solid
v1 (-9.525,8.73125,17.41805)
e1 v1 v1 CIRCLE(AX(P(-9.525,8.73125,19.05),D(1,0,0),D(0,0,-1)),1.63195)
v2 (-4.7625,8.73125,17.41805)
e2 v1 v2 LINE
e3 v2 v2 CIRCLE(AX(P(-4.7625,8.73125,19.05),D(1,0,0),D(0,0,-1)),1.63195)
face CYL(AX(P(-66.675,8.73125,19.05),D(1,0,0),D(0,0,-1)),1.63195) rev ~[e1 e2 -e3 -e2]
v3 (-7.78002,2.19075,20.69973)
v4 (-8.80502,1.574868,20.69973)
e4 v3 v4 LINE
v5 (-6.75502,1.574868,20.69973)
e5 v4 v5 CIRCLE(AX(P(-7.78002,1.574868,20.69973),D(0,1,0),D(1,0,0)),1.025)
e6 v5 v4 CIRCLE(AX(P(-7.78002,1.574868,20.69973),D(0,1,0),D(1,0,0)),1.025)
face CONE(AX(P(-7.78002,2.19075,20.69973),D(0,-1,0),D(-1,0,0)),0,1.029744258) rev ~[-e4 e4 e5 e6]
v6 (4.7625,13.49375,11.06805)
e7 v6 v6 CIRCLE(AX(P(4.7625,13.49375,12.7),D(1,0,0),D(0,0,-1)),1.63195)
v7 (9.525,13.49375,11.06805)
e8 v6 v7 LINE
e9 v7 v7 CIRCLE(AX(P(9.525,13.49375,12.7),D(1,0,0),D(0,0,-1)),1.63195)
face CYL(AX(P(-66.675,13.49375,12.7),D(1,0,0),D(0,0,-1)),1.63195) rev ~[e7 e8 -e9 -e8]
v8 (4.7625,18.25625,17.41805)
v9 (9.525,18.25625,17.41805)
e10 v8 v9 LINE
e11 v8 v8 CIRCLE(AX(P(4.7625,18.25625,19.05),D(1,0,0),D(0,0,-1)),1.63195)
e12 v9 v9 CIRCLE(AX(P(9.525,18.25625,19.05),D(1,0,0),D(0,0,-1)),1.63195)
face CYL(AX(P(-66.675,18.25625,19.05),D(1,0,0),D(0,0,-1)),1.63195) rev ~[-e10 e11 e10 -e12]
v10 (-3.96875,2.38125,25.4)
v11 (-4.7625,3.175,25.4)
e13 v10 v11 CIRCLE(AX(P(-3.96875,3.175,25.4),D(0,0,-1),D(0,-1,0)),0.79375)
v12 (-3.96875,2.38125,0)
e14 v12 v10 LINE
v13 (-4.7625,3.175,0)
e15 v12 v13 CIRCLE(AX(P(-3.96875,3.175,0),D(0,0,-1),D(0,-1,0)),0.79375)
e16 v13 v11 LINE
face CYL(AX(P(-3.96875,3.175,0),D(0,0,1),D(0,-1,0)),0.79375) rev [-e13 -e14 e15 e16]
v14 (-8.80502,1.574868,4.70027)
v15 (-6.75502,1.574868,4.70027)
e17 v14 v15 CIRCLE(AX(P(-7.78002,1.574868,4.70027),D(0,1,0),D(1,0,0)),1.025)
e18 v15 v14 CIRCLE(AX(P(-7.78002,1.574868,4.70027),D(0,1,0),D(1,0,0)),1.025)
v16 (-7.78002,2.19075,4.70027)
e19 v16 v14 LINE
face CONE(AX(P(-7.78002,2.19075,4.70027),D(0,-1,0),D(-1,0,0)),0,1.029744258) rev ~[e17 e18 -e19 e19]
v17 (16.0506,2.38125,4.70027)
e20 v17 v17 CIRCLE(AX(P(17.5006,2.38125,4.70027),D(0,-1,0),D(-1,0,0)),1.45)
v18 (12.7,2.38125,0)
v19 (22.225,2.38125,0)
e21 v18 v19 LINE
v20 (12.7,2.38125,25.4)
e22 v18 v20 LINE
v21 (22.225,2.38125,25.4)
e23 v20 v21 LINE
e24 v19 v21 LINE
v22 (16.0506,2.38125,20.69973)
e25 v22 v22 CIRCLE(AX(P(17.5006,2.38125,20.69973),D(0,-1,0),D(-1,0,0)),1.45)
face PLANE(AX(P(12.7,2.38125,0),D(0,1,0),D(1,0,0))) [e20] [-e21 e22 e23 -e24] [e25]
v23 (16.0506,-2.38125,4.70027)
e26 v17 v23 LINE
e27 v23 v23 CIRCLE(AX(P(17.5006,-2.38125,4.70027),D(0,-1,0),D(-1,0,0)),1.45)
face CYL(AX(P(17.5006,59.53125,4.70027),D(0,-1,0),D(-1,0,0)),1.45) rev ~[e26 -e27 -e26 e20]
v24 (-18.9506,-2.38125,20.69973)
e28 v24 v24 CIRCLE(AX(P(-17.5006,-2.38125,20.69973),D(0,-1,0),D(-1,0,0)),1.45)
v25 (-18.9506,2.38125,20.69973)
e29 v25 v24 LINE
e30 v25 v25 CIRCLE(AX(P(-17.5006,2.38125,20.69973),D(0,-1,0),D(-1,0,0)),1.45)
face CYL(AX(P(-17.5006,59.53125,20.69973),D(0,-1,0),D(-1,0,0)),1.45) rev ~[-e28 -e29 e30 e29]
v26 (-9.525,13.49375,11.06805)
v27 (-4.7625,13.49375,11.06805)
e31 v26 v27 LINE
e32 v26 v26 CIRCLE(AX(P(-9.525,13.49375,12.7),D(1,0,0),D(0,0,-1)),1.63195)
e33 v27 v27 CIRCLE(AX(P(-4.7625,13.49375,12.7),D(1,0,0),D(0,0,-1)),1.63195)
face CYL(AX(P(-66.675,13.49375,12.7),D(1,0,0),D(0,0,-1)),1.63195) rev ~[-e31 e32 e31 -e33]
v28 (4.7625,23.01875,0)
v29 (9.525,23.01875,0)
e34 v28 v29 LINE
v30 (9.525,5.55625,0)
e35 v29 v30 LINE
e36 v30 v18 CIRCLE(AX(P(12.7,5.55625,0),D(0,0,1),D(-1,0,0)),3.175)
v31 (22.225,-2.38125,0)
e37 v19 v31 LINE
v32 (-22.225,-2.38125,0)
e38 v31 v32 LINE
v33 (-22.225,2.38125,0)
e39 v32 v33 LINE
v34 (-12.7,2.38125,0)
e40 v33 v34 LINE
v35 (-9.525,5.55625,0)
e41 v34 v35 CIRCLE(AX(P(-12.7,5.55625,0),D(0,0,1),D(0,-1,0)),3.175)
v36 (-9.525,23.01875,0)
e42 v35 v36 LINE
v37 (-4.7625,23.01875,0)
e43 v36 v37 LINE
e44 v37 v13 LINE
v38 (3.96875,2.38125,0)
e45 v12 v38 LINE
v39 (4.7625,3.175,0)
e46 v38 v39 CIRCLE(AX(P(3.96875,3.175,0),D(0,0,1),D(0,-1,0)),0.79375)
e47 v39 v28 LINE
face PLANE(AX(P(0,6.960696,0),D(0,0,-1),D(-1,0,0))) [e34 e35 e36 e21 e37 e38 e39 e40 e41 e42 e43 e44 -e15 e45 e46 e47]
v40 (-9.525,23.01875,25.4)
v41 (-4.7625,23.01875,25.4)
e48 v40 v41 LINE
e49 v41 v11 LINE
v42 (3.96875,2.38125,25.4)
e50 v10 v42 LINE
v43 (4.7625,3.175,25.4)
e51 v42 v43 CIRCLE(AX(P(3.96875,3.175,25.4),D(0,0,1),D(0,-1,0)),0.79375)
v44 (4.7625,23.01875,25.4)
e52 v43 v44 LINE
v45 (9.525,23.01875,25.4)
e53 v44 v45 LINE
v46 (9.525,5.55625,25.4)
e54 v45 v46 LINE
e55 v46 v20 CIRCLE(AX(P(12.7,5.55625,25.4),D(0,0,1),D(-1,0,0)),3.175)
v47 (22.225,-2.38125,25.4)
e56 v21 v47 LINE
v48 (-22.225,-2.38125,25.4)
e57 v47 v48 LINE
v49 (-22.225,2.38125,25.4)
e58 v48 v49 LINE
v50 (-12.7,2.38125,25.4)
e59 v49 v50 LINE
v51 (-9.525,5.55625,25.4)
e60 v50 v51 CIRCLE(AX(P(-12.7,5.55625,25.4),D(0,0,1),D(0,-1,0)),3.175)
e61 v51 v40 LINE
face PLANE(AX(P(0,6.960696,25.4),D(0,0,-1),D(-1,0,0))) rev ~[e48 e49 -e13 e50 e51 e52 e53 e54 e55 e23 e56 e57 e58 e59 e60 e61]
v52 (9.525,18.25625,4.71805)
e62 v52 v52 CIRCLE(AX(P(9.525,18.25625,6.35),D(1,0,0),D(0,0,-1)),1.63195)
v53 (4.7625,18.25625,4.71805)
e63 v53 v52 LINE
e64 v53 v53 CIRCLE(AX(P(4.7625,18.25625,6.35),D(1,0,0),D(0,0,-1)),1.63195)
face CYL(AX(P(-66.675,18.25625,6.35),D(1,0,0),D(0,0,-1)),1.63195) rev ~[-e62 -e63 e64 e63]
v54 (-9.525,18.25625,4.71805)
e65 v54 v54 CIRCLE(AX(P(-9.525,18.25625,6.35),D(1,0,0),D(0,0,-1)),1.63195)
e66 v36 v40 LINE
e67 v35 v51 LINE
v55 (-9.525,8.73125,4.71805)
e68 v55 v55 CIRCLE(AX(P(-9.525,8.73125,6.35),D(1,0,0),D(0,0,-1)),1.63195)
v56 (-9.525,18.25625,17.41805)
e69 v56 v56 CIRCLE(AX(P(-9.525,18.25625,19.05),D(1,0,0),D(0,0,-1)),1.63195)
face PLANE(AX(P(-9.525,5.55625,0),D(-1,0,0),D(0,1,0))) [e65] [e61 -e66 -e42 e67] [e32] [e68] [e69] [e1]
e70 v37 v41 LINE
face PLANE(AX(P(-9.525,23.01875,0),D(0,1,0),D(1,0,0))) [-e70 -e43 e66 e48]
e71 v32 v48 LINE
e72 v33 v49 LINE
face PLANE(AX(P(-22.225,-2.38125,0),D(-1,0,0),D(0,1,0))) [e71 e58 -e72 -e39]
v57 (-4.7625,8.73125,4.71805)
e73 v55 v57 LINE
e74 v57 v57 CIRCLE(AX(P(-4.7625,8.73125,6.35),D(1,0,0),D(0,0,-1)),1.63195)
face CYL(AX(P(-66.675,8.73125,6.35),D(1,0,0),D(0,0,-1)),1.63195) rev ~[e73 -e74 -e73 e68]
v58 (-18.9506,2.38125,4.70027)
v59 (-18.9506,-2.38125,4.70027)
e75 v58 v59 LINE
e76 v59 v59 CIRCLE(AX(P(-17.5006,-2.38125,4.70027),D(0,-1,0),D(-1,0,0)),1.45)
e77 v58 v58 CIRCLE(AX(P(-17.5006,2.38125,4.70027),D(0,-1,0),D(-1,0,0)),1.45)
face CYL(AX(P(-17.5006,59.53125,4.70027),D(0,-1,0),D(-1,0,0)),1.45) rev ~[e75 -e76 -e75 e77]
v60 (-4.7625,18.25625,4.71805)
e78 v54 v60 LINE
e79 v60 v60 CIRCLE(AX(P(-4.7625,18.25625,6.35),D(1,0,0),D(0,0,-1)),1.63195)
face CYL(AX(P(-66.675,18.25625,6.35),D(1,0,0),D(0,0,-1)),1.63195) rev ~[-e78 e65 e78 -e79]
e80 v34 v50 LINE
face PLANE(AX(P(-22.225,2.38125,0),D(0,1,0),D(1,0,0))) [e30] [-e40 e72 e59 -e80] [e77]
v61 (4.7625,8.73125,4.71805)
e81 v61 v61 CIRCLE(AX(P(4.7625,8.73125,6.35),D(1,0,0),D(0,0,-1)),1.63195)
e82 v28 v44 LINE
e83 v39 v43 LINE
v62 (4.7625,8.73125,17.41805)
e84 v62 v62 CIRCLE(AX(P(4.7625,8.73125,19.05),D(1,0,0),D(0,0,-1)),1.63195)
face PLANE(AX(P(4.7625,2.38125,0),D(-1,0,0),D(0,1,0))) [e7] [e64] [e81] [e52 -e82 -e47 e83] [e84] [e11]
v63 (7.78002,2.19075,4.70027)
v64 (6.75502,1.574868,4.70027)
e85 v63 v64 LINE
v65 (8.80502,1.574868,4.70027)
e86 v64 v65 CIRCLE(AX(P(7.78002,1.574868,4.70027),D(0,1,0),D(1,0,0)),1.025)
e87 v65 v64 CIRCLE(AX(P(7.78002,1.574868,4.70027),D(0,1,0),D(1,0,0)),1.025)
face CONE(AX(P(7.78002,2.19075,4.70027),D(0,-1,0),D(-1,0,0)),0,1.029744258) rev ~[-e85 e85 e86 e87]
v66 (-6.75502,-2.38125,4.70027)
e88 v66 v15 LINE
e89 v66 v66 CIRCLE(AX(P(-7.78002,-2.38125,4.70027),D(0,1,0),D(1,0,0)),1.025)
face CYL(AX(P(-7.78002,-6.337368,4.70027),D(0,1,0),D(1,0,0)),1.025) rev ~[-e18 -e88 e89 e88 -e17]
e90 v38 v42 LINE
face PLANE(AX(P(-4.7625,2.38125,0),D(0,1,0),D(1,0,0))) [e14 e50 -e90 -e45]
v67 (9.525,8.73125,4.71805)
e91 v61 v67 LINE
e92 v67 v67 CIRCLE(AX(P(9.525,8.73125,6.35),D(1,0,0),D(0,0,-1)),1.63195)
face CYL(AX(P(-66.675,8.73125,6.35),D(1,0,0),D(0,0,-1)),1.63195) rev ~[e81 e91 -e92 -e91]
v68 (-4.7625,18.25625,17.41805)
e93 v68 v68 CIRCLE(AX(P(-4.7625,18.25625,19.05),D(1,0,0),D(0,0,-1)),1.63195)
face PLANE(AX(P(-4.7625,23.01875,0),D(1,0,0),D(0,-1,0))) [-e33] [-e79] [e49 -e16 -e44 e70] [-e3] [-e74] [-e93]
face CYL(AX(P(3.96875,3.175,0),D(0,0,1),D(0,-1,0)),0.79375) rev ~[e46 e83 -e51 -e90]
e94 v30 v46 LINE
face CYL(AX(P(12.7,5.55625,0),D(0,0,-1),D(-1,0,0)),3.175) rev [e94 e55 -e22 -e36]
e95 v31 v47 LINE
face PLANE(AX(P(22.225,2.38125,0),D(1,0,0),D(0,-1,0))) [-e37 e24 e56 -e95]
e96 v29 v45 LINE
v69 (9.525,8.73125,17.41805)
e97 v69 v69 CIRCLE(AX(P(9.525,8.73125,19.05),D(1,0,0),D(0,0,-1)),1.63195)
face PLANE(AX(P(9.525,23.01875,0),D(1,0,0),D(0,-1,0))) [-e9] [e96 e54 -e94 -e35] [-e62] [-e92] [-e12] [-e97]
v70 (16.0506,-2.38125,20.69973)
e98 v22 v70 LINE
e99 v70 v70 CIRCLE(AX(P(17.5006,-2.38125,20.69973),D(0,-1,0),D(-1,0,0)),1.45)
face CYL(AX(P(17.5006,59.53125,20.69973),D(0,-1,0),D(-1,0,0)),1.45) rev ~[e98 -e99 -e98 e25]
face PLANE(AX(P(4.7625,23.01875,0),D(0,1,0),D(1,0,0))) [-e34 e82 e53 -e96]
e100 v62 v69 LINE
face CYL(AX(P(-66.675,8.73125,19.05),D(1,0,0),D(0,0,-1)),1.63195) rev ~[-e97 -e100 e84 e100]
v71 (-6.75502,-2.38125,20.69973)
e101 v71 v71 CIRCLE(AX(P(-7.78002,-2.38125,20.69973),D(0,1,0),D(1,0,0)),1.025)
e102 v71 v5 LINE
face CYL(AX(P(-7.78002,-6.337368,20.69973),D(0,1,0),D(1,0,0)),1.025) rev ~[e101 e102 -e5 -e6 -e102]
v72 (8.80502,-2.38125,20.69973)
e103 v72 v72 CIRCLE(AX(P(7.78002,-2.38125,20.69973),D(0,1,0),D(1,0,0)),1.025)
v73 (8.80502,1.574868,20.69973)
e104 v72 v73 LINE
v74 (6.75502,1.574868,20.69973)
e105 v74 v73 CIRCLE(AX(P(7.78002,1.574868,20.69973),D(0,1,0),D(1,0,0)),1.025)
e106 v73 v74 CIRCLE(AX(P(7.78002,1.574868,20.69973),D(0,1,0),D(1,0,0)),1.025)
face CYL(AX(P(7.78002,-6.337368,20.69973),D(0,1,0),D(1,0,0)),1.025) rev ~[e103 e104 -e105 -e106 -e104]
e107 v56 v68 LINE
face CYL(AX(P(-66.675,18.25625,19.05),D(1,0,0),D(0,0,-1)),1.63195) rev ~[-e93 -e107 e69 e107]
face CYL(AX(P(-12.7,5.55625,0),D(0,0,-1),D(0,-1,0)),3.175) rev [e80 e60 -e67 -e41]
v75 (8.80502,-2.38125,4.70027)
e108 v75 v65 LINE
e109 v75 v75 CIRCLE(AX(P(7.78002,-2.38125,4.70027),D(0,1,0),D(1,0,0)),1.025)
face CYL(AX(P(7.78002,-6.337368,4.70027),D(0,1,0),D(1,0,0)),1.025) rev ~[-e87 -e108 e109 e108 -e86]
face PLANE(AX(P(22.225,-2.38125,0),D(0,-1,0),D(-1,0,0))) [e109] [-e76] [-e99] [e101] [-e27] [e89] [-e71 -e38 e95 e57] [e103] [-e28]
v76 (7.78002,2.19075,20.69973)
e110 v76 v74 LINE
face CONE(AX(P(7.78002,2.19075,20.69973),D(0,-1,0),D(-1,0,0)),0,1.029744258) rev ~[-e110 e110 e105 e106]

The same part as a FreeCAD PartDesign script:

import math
import FreeCAD as App
import Part
import Sketcher
Q = App.Units.Quantity


def edges_at(feature, points):
    """Names of the edges that pass closest to the given points."""
    edges = feature.Shape.Edges
    near = lambda p: min(range(len(edges)), key=lambda i: edges[i].distToShape(Part.Vertex(*p))[0])
    return sorted({f"Edge{near(p) + 1}" for p in points})

doc = App.newDocument("Part")
params = doc.addObject("Spreadsheet::Sheet", "Params")
for row, (alias, value) in enumerate([
    ("sketch1_radius", "0.125 in"),
    ("sketch1_width", "1.75 in"),
    ("sketch1_height", "0.8125 in"),
    ("pad1_length", "1 in"),
    ("fillet_radius", "0.03125 in"),
    ("hole_diameter", "2.9 mm"),
    ("hole2_diameter", "2.05 mm"),
    ("hole2_depth", "3.956118 mm"),
    ("hole3_diameter", "0.1285 in"),
], start=1):
    params.set(f"A{row}", alias)
    params.set(f"B{row}", "=" + value)
    params.setAlias(f"B{row}", alias)

body = doc.addObject("PartDesign::Body", "Body")

sketch1 = body.newObject("Sketcher::SketchObject", "Sketch")
sketch1.AttachmentSupport = (doc.getObject("XY_Plane"), [""])
sketch1.MapMode = "FlatFace"
sketch1.addGeometry(Part.LineSegment(App.Vector(4.8, 2.4, 0), App.Vector(-4.8, 2.4, 0)), False)
sketch1.addGeometry(Part.LineSegment(App.Vector(-4.8, 2.4, 0), App.Vector(-4.8, 23, 0)), False)
sketch1.addGeometry(Part.LineSegment(App.Vector(-4.8, 23, 0), App.Vector(-9.5, 23, 0)), False)
sketch1.addGeometry(Part.LineSegment(App.Vector(-9.5, 23, 0), App.Vector(-9.5, 5.6, 0)), False)
sketch1.addGeometry(Part.ArcOfCircle(Part.Circle(App.Vector(-12.7, 5.6, 0), App.Vector(0, 0, 1), 3.2), math.radians(-90), math.radians(0)), False)
sketch1.addGeometry(Part.LineSegment(App.Vector(-12.7, 2.4, 0), App.Vector(-22.2, 2.4, 0)), False)
sketch1.addGeometry(Part.LineSegment(App.Vector(-22.2, 2.4, 0), App.Vector(-22.2, -2.4, 0)), False)
sketch1.addGeometry(Part.LineSegment(App.Vector(-22.2, -2.4, 0), App.Vector(22.2, -2.4, 0)), False)
sketch1.addGeometry(Part.LineSegment(App.Vector(22.2, -2.4, 0), App.Vector(22.2, 2.4, 0)), False)
sketch1.addGeometry(Part.LineSegment(App.Vector(22.2, 2.4, 0), App.Vector(12.7, 2.4, 0)), False)
sketch1.addGeometry(Part.ArcOfCircle(Part.Circle(App.Vector(12.7, 5.6, 0), App.Vector(0, 0, 1), 3.2), math.radians(-180), math.radians(-90)), False)
sketch1.addGeometry(Part.LineSegment(App.Vector(9.5, 5.6, 0), App.Vector(9.5, 23, 0)), False)
sketch1.addGeometry(Part.LineSegment(App.Vector(9.5, 23, 0), App.Vector(4.8, 23, 0)), False)
sketch1.addGeometry(Part.LineSegment(App.Vector(4.8, 23, 0), App.Vector(4.8, 2.4, 0)), False)
sketch1.addConstraint(Sketcher.Constraint("Coincident", 0, 2, 1, 1))
sketch1.addConstraint(Sketcher.Constraint("Coincident", 1, 2, 2, 1))
sketch1.addConstraint(Sketcher.Constraint("Coincident", 2, 2, 3, 1))
sketch1.addConstraint(Sketcher.Constraint("Tangent", 3, 2, 4, 2))
sketch1.addConstraint(Sketcher.Constraint("Tangent", 4, 1, 5, 1))
sketch1.addConstraint(Sketcher.Constraint("Coincident", 5, 2, 6, 1))
sketch1.addConstraint(Sketcher.Constraint("Coincident", 6, 2, 7, 1))
sketch1.addConstraint(Sketcher.Constraint("Coincident", 7, 2, 8, 1))
sketch1.addConstraint(Sketcher.Constraint("Coincident", 8, 2, 9, 1))
sketch1.addConstraint(Sketcher.Constraint("Tangent", 9, 2, 10, 2))
sketch1.addConstraint(Sketcher.Constraint("Tangent", 10, 1, 11, 1))
sketch1.addConstraint(Sketcher.Constraint("Coincident", 11, 2, 12, 1))
sketch1.addConstraint(Sketcher.Constraint("Coincident", 12, 2, 13, 1))
sketch1.addConstraint(Sketcher.Constraint("Coincident", 13, 2, 0, 1))
sketch1.addConstraint(Sketcher.Constraint("Horizontal", 0))
sketch1.addConstraint(Sketcher.Constraint("Vertical", 1))
sketch1.addConstraint(Sketcher.Constraint("Horizontal", 2))
sketch1.addConstraint(Sketcher.Constraint("Vertical", 3))
sketch1.addConstraint(Sketcher.Constraint("Horizontal", 5))
sketch1.addConstraint(Sketcher.Constraint("Vertical", 6))
sketch1.addConstraint(Sketcher.Constraint("Horizontal", 7))
sketch1.addConstraint(Sketcher.Constraint("Vertical", 8))
sketch1.addConstraint(Sketcher.Constraint("Horizontal", 9))
sketch1.addConstraint(Sketcher.Constraint("Vertical", 11))
sketch1.addConstraint(Sketcher.Constraint("Horizontal", 12))
sketch1.addConstraint(Sketcher.Constraint("Vertical", 13))
sketch1.addConstraint(Sketcher.Constraint("Equal", 4, 10))
sketch1.addConstraint(Sketcher.Constraint("Symmetric", 5, 2, 7, 2, -1, 1))
sketch1.addConstraint(Sketcher.Constraint("Symmetric", 4, 3, 10, 3, -2))
sketch1.addConstraint(Sketcher.Constraint("Symmetric", 1, 2, 12, 2, -2))
sketch1.addConstraint(Sketcher.Constraint("Horizontal", 0, 2, 4, 1))
sketch1.addConstraint(Sketcher.Constraint("Equal", 0, 5))
sketch1.addConstraint(Sketcher.Constraint("Equal", 12, 6))
sketch1.addConstraint(Sketcher.Constraint("Radius", 4, Q("0.125 in")))
sketch1.addConstraint(Sketcher.Constraint("DistanceX", 4, 3, 10, 3, Q("1 in")))
sketch1.addConstraint(Sketcher.Constraint("DistanceX", 7, 1, 7, 2, Q("1.75 in")))
sketch1.addConstraint(Sketcher.Constraint("DistanceY", 1, 1, 1, 2, Q("0.8125 in")))
sketch1.setExpression("Constraints[33]", "Params.sketch1_radius")
sketch1.setExpression("Constraints[35]", "Params.sketch1_width")
sketch1.setExpression("Constraints[36]", "Params.sketch1_height")
pad1 = body.newObject("PartDesign::Pad", "Pad")
pad1.Profile = sketch1
pad1.setExpression("Length", "Params.pad1_length")
doc.recompute()

fillet = body.newObject("PartDesign::Fillet", "Fillet")
fillet.Base = (pad1, edges_at(pad1, [(-4.763, 2.381, 12.7), (4.763, 2.381, 12.7)]))
fillet.setExpression("Radius", "Params.fillet_radius")

sketch2 = body.newObject("Sketcher::SketchObject", "Sketch001")
sketch2.AttachmentSupport = (doc.getObject("XZ_Plane"), [""])
sketch2.MapMode = "FlatFace"
sketch2.AttachmentOffset = App.Placement(App.Vector(0, 0, -0.09375 * 25.4), App.Rotation())
sketch2.addGeometry(Part.Circle(App.Vector(17.5, 4.7, 0), App.Vector(0, 0, 1), 1.4), False)
sketch2.addGeometry(Part.Circle(App.Vector(17.5, 20.7, 0), App.Vector(0, 0, 1), 1.4), False)
sketch2.addGeometry(Part.Circle(App.Vector(-17.5, 20.7, 0), App.Vector(0, 0, 1), 1.4), False)
sketch2.addGeometry(Part.Circle(App.Vector(-17.5, 4.7, 0), App.Vector(0, 0, 1), 1.4), False)
sketch2.addConstraint(Sketcher.Constraint("Equal", 0, 1))
sketch2.addConstraint(Sketcher.Constraint("Equal", 1, 2))
sketch2.addConstraint(Sketcher.Constraint("Equal", 2, 3))
sketch2.addConstraint(Sketcher.Constraint("Symmetric", 1, 3, 2, 3, -2))
sketch2.addConstraint(Sketcher.Constraint("Symmetric", 0, 3, 3, 3, -2))
sketch2.addConstraint(Sketcher.Constraint("Vertical", 0, 3, 1, 3))
sketch2.addConstraint(Sketcher.Constraint("Diameter", 0, Q("2.9 mm")))
sketch2.addConstraint(Sketcher.Constraint("DistanceX", -1, 1, 0, 3, Q("0.689 in")))
sketch2.addConstraint(Sketcher.Constraint("DistanceY", 0, 3, 1, 3, Q("0.6299 in")))
sketch2.addConstraint(Sketcher.Constraint("DistanceY", -1, 1, 0, 3, Q("4.70027 mm")))
doc.recompute()
hole = body.newObject("PartDesign::Hole", "Hole")
hole.Profile = sketch2
hole.ThreadType = "None"
hole.setExpression("Diameter", "Params.hole_diameter")
hole.DepthType = "ThroughAll"
hole.Reversed = True

sketch3 = body.newObject("Sketcher::SketchObject", "Sketch002")
sketch3.AttachmentSupport = (doc.getObject("XZ_Plane"), [""])
sketch3.MapMode = "FlatFace"
sketch3.AttachmentOffset = App.Placement(App.Vector(0, 0, 0.09375 * 25.4), App.Rotation())
sketch3.addGeometry(Part.Circle(App.Vector(7.8, 4.7, 0), App.Vector(0, 0, 1), 1), False)
sketch3.addGeometry(Part.Circle(App.Vector(-7.8, 4.7, 0), App.Vector(0, 0, 1), 1), False)
sketch3.addGeometry(Part.Circle(App.Vector(-7.8, 20.7, 0), App.Vector(0, 0, 1), 1), False)
sketch3.addGeometry(Part.Circle(App.Vector(7.8, 20.7, 0), App.Vector(0, 0, 1), 1), False)
sketch3.addConstraint(Sketcher.Constraint("Equal", 0, 1))
sketch3.addConstraint(Sketcher.Constraint("Equal", 1, 2))
sketch3.addConstraint(Sketcher.Constraint("Equal", 2, 3))
sketch3.addConstraint(Sketcher.Constraint("Symmetric", 0, 3, 1, 3, -2))
sketch3.addConstraint(Sketcher.Constraint("Symmetric", 2, 3, 3, 3, -2))
sketch3.addConstraint(Sketcher.Constraint("Vertical", 1, 3, 2, 3))
sketch3.addConstraint(Sketcher.Constraint("Diameter", 0, Q("2.05 mm")))
sketch3.addConstraint(Sketcher.Constraint("DistanceX", -1, 1, 0, 3, Q("0.3063 in")))
sketch3.addConstraint(Sketcher.Constraint("DistanceY", 1, 3, 2, 3, Q("0.6299 in")))
sketch3.addConstraint(Sketcher.Constraint("DistanceY", -1, 1, 0, 3, Q("4.70027 mm")))
doc.recompute()
hole2 = body.newObject("PartDesign::Hole", "Hole001")
hole2.Profile = sketch3
hole2.ThreadType = "None"
hole2.setExpression("Diameter", "Params.hole2_diameter")
hole2.DepthType = "Dimension"
hole2.setExpression("Depth", "Params.hole2_depth")
hole2.DrillPoint = "Angled"
hole2.DrillPointAngle = 118

sketch4 = body.newObject("Sketcher::SketchObject", "Sketch003")
sketch4.AttachmentSupport = (doc.getObject("YZ_Plane"), [""])
sketch4.MapMode = "FlatFace"
sketch4.AttachmentOffset = App.Placement(App.Vector(0, 0, -0.375 * 25.4), App.Rotation())
sketch4.addGeometry(Part.Circle(App.Vector(18.3, 6.3, 0), App.Vector(0, 0, 1), 1.6), False)
sketch4.addGeometry(Part.Circle(App.Vector(18.3, 19.1, 0), App.Vector(0, 0, 1), 1.6), False)
sketch4.addGeometry(Part.Circle(App.Vector(8.7, 19.1, 0), App.Vector(0, 0, 1), 1.6), False)
sketch4.addGeometry(Part.Circle(App.Vector(8.7, 6.3, 0), App.Vector(0, 0, 1), 1.6), False)
sketch4.addGeometry(Part.Circle(App.Vector(13.5, 12.7, 0), App.Vector(0, 0, 1), 1.6), False)
sketch4.addConstraint(Sketcher.Constraint("Equal", 0, 1))
sketch4.addConstraint(Sketcher.Constraint("Equal", 1, 2))
sketch4.addConstraint(Sketcher.Constraint("Equal", 2, 3))
sketch4.addConstraint(Sketcher.Constraint("Equal", 3, 4))
sketch4.addConstraint(Sketcher.Constraint("Horizontal", 1, 3, 2, 3))
sketch4.addConstraint(Sketcher.Constraint("Horizontal", 0, 3, 3, 3))
sketch4.addConstraint(Sketcher.Constraint("Vertical", 0, 3, 1, 3))
sketch4.addConstraint(Sketcher.Constraint("Vertical", 2, 3, 3, 3))
sketch4.addConstraint(Sketcher.Constraint("Diameter", 0, Q("0.1285 in")))
sketch4.addConstraint(Sketcher.Constraint("DistanceY", -1, 1, 4, 3, Q("0.5 in")))
sketch4.addConstraint(Sketcher.Constraint("DistanceY", 0, 3, 1, 3, Q("0.5 in")))
sketch4.addConstraint(Sketcher.Constraint("DistanceY", -1, 1, 0, 3, Q("0.25 in")))
sketch4.addConstraint(Sketcher.Constraint("DistanceX", -1, 1, 0, 3, Q("0.71875 in")))
sketch4.addConstraint(Sketcher.Constraint("DistanceX", -1, 1, 2, 3, Q("0.34375 in")))
sketch4.addConstraint(Sketcher.Constraint("DistanceX", -1, 1, 4, 3, Q("0.53125 in")))
doc.recompute()
hole3 = body.newObject("PartDesign::Hole", "Hole002")
hole3.Profile = sketch4
hole3.ThreadType = "None"
hole3.setExpression("Diameter", "Params.hole3_diameter")
hole3.DepthType = "ThroughAll"
hole3.Reversed = True

doc.recompute()
